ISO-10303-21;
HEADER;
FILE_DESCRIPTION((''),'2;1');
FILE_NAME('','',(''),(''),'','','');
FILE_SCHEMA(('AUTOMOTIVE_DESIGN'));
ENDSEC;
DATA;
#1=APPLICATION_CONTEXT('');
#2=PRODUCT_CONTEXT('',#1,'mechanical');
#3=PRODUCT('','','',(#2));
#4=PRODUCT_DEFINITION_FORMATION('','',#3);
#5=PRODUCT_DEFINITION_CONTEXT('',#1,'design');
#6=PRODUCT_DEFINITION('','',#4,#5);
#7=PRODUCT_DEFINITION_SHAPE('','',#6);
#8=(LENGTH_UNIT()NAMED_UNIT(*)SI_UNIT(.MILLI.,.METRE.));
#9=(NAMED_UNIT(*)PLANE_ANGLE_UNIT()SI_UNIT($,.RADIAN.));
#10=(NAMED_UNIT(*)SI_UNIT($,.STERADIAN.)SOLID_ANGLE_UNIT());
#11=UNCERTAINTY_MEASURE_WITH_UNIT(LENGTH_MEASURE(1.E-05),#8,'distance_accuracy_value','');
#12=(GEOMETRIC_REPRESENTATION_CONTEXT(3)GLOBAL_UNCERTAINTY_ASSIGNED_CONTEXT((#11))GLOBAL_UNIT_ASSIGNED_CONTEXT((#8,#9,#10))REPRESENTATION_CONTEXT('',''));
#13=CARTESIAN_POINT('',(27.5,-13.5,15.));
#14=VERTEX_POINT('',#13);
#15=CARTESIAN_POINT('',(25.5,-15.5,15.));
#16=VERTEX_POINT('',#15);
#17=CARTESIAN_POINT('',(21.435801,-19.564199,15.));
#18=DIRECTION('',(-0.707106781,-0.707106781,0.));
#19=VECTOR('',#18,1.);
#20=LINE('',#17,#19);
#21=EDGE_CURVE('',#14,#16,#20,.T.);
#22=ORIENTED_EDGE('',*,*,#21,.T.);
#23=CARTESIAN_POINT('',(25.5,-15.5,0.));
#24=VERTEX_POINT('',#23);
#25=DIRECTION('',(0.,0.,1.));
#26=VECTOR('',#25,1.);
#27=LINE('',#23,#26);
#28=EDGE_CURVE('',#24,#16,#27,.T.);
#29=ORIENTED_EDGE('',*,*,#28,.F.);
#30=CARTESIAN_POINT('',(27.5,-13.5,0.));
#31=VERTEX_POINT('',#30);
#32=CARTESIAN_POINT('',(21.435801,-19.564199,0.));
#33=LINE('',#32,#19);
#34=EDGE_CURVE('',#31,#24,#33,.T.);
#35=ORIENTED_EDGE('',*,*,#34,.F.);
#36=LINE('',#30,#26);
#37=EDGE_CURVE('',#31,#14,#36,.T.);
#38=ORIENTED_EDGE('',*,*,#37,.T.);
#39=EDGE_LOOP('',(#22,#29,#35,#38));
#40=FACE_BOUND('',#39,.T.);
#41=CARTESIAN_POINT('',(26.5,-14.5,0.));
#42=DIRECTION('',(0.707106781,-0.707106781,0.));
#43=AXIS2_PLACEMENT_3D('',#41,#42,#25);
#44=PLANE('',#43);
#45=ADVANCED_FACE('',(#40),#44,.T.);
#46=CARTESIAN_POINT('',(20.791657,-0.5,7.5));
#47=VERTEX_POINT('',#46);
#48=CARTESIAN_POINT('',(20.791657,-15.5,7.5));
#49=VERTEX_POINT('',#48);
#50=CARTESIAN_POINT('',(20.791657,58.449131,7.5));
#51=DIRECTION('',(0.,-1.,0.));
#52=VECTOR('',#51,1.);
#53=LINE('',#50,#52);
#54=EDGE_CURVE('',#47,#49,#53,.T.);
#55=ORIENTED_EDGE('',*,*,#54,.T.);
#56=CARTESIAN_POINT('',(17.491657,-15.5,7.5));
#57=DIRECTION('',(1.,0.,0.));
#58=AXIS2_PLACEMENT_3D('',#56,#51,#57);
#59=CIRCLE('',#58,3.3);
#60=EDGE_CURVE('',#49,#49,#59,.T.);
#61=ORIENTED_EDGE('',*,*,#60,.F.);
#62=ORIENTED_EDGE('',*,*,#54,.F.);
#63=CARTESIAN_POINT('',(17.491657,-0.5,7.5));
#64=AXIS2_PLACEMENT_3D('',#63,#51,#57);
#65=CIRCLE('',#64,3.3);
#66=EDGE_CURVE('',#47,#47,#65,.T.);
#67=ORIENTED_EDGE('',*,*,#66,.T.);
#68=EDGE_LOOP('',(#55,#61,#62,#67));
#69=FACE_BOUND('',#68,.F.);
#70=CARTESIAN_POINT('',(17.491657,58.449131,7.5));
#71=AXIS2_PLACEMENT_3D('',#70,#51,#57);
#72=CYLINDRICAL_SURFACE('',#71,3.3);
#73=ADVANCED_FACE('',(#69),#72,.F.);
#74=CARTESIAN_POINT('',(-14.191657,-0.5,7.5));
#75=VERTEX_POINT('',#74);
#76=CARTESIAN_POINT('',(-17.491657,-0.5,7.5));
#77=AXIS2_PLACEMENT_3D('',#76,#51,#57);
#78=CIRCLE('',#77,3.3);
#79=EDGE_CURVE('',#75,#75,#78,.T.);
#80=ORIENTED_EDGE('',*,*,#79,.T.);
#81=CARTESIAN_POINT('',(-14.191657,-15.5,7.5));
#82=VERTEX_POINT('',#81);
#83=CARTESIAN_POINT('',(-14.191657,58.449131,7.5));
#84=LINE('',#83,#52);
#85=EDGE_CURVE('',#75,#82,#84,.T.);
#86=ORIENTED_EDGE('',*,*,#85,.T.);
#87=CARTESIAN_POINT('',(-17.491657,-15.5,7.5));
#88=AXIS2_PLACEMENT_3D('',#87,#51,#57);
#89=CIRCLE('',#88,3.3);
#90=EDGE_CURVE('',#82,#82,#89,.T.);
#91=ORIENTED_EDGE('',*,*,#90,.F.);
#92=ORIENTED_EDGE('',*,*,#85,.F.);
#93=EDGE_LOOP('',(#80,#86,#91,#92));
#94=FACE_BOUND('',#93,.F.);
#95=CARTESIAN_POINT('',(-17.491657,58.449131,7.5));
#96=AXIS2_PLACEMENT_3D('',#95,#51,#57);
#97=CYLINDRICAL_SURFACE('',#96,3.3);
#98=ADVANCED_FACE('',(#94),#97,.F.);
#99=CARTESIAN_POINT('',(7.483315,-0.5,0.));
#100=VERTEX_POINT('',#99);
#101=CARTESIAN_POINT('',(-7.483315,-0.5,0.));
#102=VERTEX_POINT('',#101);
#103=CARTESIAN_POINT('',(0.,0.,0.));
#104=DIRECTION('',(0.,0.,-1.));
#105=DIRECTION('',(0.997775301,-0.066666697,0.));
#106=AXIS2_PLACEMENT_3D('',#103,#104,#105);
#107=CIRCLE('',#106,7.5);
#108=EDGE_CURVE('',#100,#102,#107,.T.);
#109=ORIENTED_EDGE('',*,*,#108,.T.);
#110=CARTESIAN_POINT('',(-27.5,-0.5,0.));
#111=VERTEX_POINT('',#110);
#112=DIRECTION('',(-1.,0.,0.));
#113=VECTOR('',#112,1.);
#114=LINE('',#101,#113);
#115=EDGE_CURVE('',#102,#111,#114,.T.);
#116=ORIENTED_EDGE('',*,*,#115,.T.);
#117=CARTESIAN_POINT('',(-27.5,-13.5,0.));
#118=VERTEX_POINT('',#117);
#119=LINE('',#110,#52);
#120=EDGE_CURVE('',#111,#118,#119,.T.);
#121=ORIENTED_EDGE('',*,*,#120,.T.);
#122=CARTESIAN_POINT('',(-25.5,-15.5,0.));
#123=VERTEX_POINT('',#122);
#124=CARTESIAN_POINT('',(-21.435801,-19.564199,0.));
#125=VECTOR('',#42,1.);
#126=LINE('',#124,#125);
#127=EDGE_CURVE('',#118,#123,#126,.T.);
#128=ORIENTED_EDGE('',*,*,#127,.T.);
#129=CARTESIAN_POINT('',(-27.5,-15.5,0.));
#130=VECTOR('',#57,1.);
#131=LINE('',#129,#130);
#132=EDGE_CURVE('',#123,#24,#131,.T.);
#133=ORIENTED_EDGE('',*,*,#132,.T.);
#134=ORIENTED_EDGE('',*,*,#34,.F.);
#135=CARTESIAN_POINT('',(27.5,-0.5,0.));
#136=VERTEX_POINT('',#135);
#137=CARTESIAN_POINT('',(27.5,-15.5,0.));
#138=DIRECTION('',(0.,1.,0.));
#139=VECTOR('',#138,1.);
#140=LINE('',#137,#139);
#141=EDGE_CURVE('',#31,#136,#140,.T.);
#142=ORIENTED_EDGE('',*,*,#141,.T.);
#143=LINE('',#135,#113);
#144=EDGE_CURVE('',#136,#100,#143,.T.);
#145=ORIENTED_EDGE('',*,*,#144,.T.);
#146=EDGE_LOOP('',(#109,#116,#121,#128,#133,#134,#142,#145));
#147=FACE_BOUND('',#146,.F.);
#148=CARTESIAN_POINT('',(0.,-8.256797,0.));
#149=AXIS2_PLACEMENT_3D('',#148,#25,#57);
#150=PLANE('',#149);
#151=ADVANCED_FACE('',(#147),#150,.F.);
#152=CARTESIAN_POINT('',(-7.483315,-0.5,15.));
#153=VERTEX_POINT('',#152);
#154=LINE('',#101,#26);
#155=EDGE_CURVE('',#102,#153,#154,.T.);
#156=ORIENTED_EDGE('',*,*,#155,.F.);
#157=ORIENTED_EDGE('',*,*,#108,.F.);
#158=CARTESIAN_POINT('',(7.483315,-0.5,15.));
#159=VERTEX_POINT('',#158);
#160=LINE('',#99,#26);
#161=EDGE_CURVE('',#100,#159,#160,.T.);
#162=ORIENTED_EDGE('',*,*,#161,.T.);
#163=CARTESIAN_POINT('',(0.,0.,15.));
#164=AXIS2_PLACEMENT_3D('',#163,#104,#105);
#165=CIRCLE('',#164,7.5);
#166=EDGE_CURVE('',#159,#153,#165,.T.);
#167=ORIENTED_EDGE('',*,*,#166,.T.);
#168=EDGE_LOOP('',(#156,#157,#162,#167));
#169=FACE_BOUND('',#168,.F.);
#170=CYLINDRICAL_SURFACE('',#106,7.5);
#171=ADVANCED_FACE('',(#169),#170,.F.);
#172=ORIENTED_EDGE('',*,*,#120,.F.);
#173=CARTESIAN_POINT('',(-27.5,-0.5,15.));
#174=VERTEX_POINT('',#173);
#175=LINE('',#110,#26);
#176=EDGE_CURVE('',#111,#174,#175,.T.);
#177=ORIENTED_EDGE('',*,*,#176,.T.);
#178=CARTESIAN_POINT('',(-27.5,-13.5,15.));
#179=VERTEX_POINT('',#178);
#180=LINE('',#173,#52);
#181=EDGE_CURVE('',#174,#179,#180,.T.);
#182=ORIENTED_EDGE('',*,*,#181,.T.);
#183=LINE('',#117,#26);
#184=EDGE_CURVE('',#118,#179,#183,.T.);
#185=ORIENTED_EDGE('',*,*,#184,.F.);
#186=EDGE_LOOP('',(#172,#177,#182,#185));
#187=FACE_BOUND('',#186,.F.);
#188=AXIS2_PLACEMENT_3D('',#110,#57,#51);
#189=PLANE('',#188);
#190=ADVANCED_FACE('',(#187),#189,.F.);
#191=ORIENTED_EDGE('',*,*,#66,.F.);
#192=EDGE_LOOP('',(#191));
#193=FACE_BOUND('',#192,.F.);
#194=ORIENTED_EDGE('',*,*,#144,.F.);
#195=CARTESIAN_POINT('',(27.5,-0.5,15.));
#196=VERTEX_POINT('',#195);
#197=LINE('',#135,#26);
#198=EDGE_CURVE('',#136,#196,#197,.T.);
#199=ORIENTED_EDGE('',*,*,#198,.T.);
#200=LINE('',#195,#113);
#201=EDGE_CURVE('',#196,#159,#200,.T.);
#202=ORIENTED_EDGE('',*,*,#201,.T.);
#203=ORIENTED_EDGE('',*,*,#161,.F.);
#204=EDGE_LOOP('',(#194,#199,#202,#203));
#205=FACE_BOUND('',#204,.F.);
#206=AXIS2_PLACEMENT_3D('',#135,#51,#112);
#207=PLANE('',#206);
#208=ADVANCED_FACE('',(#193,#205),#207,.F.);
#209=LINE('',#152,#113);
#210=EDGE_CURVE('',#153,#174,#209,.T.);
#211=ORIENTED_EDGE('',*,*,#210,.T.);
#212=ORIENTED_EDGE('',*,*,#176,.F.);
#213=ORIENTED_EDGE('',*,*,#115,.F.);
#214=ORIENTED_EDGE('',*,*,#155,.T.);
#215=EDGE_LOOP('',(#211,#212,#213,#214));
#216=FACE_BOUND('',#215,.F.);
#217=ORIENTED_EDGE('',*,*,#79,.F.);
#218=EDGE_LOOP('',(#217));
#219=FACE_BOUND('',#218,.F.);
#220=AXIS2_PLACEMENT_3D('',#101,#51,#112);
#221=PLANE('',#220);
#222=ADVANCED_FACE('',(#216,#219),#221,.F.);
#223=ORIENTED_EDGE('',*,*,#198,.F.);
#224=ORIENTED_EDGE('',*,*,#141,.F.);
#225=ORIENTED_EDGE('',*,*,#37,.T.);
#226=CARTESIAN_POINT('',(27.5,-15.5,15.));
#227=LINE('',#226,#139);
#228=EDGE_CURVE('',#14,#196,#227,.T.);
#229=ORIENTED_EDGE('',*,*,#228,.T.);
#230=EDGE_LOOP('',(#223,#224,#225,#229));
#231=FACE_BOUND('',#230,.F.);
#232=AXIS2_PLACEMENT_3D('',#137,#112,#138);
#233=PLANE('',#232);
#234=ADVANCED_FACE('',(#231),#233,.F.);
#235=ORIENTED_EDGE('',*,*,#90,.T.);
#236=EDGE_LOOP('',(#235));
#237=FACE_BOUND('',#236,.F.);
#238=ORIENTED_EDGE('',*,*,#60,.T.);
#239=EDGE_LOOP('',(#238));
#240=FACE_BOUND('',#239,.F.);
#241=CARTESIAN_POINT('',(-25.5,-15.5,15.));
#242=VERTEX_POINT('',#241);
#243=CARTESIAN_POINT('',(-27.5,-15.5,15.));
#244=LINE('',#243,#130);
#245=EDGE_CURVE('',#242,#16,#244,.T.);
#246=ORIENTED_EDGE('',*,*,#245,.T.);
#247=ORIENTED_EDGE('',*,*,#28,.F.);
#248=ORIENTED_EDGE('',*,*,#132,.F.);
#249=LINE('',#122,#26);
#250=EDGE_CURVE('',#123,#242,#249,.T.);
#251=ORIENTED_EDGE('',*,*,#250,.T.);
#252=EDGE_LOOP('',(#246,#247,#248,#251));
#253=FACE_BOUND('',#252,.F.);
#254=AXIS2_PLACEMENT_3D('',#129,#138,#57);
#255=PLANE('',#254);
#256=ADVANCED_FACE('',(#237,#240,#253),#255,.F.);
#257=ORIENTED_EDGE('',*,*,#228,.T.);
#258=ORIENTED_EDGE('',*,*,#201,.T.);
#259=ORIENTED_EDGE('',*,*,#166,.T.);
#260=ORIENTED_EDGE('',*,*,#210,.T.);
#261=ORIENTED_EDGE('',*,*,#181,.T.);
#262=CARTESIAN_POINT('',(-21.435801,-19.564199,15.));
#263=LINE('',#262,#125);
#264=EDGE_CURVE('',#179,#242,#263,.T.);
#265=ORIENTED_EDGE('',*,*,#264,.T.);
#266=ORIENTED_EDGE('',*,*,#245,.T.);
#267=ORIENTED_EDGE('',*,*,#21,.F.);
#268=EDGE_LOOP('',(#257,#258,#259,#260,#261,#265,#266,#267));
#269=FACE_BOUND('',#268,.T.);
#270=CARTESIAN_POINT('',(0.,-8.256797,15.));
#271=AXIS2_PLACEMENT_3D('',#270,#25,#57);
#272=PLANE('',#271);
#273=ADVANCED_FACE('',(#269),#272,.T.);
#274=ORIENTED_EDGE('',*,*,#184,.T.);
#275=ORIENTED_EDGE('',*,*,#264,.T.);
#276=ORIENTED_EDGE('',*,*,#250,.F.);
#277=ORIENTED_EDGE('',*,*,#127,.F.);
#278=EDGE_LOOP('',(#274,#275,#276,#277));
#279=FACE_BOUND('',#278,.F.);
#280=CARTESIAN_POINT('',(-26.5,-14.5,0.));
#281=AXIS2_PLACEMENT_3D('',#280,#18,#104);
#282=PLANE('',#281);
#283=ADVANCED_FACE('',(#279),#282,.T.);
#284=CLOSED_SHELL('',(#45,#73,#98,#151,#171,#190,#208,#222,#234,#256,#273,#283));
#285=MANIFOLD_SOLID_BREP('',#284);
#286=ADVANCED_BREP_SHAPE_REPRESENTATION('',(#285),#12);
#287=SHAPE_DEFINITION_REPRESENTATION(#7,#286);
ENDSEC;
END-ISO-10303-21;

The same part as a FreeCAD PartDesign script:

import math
import FreeCAD as App
import Part
import Sketcher


def edges_at(feature, points):
    """Names of the edges that pass closest to the given points."""
    edges = feature.Shape.Edges
    near = lambda p: min(range(len(edges)), key=lambda i: edges[i].distToShape(Part.Vertex(*p))[0])
    return sorted({f"Edge{near(p) + 1}" for p in points})

doc = App.newDocument("Part")
body = doc.addObject("PartDesign::Body", "Body")

# Sketch on XY plane
sketch1 = body.newObject("Sketcher::SketchObject", "Sketch")
sketch1.AttachmentSupport = (doc.getObject("XY_Plane"), [""])
sketch1.MapMode = "FlatFace"
sketch1.addGeometry([
    Part.ArcOfCircle(Part.Circle(App.Vector(0, 0, 0), App.Vector(0, 0, 1), 8), math.radians(-176), math.radians(-4)),  # 0
    Part.LineSegment(App.Vector(-7, 0, 0), App.Vector(-28, 0, 0)),  # 1
    Part.LineSegment(App.Vector(-28, 0, 0), App.Vector(-28, -16, 0)),  # 2
    Part.LineSegment(App.Vector(-28, -16, 0), App.Vector(28, -16, 0)),  # 3
    Part.LineSegment(App.Vector(28, -16, 0), App.Vector(28, 0, 0)),  # 4
    Part.LineSegment(App.Vector(28, 0, 0), App.Vector(7, 0, 0)),  # 5
], False)
sketch1.addConstraint([
    Sketcher.Constraint("Coincident", 0, 1, 1, 1),
    Sketcher.Constraint("Coincident", 1, 2, 2, 1),
    Sketcher.Constraint("Coincident", 2, 2, 3, 1),
    Sketcher.Constraint("Coincident", 3, 2, 4, 1),
    Sketcher.Constraint("Coincident", 4, 2, 5, 1),
    Sketcher.Constraint("Coincident", 5, 2, 0, 2),
    Sketcher.Constraint("Horizontal", 1),
    Sketcher.Constraint("Vertical", 2),
    Sketcher.Constraint("Horizontal", 3),
    Sketcher.Constraint("Vertical", 4),
    Sketcher.Constraint("Horizontal", 5),
    Sketcher.Constraint("Coincident", 0, 3, -1, 1),
    Sketcher.Constraint("Symmetric", 1, 2, 4, 2, -2),
    Sketcher.Constraint("Radius", 0, 7.5),
    Sketcher.Constraint("DistanceX", 3, 1, 3, 2, 55.0),
    Sketcher.Constraint("DistanceY", 2, 2, 2, 1, 15.0),
    Sketcher.Constraint("DistanceY", 0, 1, -1, 1, 0.5),
])
pad1 = body.newObject("PartDesign::Pad", "Pad")
pad1.Profile = sketch1
pad1.Length = 15

# Sketch on XZ plane
sketch2 = body.newObject("Sketcher::SketchObject", "Sketch001")
sketch2.AttachmentSupport = (doc.getObject("XZ_Plane"), [""])
sketch2.MapMode = "FlatFace"
sketch2.AttachmentOffset = App.Placement(App.Vector(0, 0, 0.5), App.Rotation())
sketch2.addGeometry([
    Part.Circle(App.Vector(-17.5, 7.5, 0), App.Vector(0, 0, 1), 3.3),
    Part.Circle(App.Vector(17.5, 7.5, 0), App.Vector(0, 0, 1), 3.3),
], False)
sketch2.addConstraint([
    Sketcher.Constraint("Equal", 0, 1),
    Sketcher.Constraint("Symmetric", 0, 3, 1, 3, -2),
    Sketcher.Constraint("Diameter", 0, 6.6),
    Sketcher.Constraint("DistanceY", -1, 1, 0, 3, 7.5),
    Sketcher.Constraint("DistanceX", 0, 3, -1, 1, 17.491657),
])
doc.recompute()
hole = body.newObject("PartDesign::Hole", "Hole")
hole.Profile = sketch2
hole.ThreadType = "None"
hole.Diameter = 6.6
hole.DepthType = "ThroughAll"
hole.Reversed = True
doc.recompute()

chamfer = body.newObject("PartDesign::Chamfer", "Chamfer")
chamfer.Base = (hole, edges_at(hole, [(-27.5, -15.5, 7.5), (27.5, -15.5, 7.5)]))
chamfer.ChamferType = "Two distances"
chamfer.Size = 2
chamfer.Size2 = 2

doc.recompute()
